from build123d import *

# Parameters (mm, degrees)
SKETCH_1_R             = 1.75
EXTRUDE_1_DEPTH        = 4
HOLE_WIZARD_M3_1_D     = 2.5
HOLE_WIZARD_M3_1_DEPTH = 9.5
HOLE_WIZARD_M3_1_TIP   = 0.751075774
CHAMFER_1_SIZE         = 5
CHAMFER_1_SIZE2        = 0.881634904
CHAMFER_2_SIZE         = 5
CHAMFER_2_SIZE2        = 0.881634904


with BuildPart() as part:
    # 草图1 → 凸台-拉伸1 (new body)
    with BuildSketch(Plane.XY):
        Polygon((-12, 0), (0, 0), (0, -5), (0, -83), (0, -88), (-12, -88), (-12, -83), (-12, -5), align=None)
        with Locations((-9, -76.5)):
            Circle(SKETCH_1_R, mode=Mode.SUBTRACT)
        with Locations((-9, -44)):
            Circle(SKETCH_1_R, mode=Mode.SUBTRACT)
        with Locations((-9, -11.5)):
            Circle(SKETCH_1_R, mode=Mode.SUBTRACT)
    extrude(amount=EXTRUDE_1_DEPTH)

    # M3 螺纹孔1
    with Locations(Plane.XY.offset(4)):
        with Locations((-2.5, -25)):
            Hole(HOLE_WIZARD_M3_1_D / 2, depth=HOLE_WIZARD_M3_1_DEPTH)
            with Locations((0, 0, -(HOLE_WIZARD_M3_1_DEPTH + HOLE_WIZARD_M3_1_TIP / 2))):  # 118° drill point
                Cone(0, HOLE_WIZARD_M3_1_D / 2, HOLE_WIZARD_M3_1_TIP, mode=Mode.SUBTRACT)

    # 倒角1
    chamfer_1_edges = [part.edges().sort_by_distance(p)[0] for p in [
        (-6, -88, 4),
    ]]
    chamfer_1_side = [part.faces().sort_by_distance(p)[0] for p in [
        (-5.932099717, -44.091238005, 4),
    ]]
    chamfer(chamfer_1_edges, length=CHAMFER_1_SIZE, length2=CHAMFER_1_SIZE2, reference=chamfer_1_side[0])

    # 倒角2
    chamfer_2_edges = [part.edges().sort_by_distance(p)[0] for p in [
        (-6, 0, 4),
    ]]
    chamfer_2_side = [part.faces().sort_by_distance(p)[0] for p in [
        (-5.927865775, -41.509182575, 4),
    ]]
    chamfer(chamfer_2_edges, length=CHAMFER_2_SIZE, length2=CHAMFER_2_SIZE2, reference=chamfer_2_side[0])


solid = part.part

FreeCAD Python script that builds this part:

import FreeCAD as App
import Part
import Sketcher


def edges_at(feature, points):
    """Names of the edges that pass closest to the given points."""
    edges = feature.Shape.Edges
    near = lambda p: min(range(len(edges)), key=lambda i: edges[i].distToShape(Part.Vertex(*p))[0])
    return sorted({f"Edge{near(p) + 1}" for p in points})

doc = App.newDocument("Part")
params = doc.addObject("Spreadsheet::Sheet", "Params")
for row, (alias, value) in enumerate([
    ("sketch1_diameter", "3.5 mm"),
    ("sketch1_width", "12 mm"),
    ("sketch1_height", "88 mm"),
    ("pad1_length", "4 mm"),
    ("sketch2_diameter", "2.5 mm"),
    ("hole_diameter", "2.5 mm"),
    ("hole_depth", "9.5 mm"),
    ("chamfer_size", "5 mm"),
    ("chamfer_size2", "0.881635 mm"),
    ("chamfer2_size", "5 mm"),
    ("chamfer2_size2", "0.881635 mm"),
], start=1):
    params.set(f"A{row}", alias)
    params.set(f"B{row}", "=" + value)
    params.setAlias(f"B{row}", alias)

body = doc.addObject("PartDesign::Body", "Body")

# Sketch on XY plane
sketch1 = doc.addObject("Sketcher::SketchObject", "Sketch")
body.addObject(sketch1)
sketch1.AttachmentSupport = (doc.XY_Plane, [""])
sketch1.MapMode = "FlatFace"
sketch1.addGeometry([
    Part.LineSegment(App.Vector(0, 0, 0), App.Vector(-12, 0, 0)),  # 0
    Part.LineSegment(App.Vector(-12, 0, 0), App.Vector(-12, -88, 0)),  # 1
    Part.LineSegment(App.Vector(-12, -88, 0), App.Vector(0, -88, 0)),  # 2
    Part.LineSegment(App.Vector(0, -88, 0), App.Vector(0, 0, 0)),  # 3
    Part.Circle(App.Vector(-9, -76.5, 0), App.Vector(0, 0, 1), 1.75),  # 4
    Part.Circle(App.Vector(-9, -44, 0), App.Vector(0, 0, 1), 1.75),  # 5
    Part.Circle(App.Vector(-9, -11.5, 0), App.Vector(0, 0, 1), 1.75),  # 6
], False)
sketch1.addConstraint([
    Sketcher.Constraint("Coincident", 0, 2, 1, 1),
    Sketcher.Constraint("Coincident", 1, 2, 2, 1),
    Sketcher.Constraint("Coincident", 2, 2, 3, 1),
    Sketcher.Constraint("Coincident", 3, 2, 0, 1),
    Sketcher.Constraint("Horizontal", 0),
    Sketcher.Constraint("Vertical", 1),
    Sketcher.Constraint("Horizontal", 2),
    Sketcher.Constraint("Vertical", 3),
    Sketcher.Constraint("Coincident", 3, 2, -1, 1),
    Sketcher.Constraint("Equal", 4, 5),
    Sketcher.Constraint("Equal", 5, 6),
    Sketcher.Constraint("Vertical", 4, 3, 5, 3),
    Sketcher.Constraint("Vertical", 5, 3, 6, 3),
    Sketcher.Constraint("Diameter", 4, 3.5),
    Sketcher.Constraint("DistanceX", 0, 2, 0, 1, 12.0),
    Sketcher.Constraint("DistanceY", 1, 2, 1, 1, 88.0),
    Sketcher.Constraint("DistanceX", 4, 3, -1, 1, 9.0),
    Sketcher.Constraint("DistanceY", 5, 3, -1, 1, 44.0),
    Sketcher.Constraint("DistanceY", 4, 3, 6, 3, 65.0),
    Sketcher.Constraint("DistanceY", 4, 3, -1, 1, 76.5),
])
sketch1.setExpression("Constraints[13]", "Params.sketch1_diameter")
sketch1.setExpression("Constraints[14]", "Params.sketch1_width")
sketch1.setExpression("Constraints[15]", "Params.sketch1_height")
pad1 = doc.addObject("PartDesign::Pad", "Pad")
body.addObject(pad1)
pad1.Profile = sketch1
pad1.setExpression("Length", "Params.pad1_length")

# Sketch on XY plane
sketch2 = doc.addObject("Sketcher::SketchObject", "Sketch001")
body.addObject(sketch2)
sketch2.AttachmentSupport = (doc.XY_Plane, [""])
sketch2.MapMode = "FlatFace"
sketch2.AttachmentOffset = App.Placement(App.Vector(0, 0, 4), App.Rotation())
sketch2.addGeometry(Part.Circle(App.Vector(-2.5, -25, 0), App.Vector(0, 0, 1), 1.25), False)
sketch2.addConstraint([
    Sketcher.Constraint("Diameter", 0, 2.5),
    Sketcher.Constraint("DistanceY", 0, 3, -1, 1, 25.0),
    Sketcher.Constraint("DistanceX", 0, 3, -1, 1, 2.5),
])
sketch2.setExpression("Constraints[0]", "Params.sketch2_diameter")
doc.recompute()
hole = doc.addObject("PartDesign::Hole", "Hole")
body.addObject(hole)
hole.Profile = sketch2
hole.ThreadType = "None"
hole.setExpression("Diameter", "Params.hole_diameter")
hole.DepthType = "Dimension"
hole.setExpression("Depth", "Params.hole_depth")
hole.DrillPoint = "Angled"
hole.DrillPointAngle = 118
doc.recompute()

chamfer = doc.addObject("PartDesign::Chamfer", "Chamfer")
body.addObject(chamfer)
chamfer.Base = (hole, edges_at(hole, [(-6, -88, 4)]))
chamfer.ChamferType = "Two distances"
chamfer.setExpression("Size", "Params.chamfer_size")
chamfer.setExpression("Size2", "Params.chamfer_size2")
doc.recompute()

chamfer2 = doc.addObject("PartDesign::Chamfer", "Chamfer001")
body.addObject(chamfer2)
chamfer2.Base = (chamfer, edges_at(chamfer, [(-6, 0, 4)]))
chamfer2.ChamferType = "Two distances"
chamfer2.setExpression("Size", "Params.chamfer2_size")
chamfer2.setExpression("Size2", "Params.chamfer2_size2")

doc.recompute()
